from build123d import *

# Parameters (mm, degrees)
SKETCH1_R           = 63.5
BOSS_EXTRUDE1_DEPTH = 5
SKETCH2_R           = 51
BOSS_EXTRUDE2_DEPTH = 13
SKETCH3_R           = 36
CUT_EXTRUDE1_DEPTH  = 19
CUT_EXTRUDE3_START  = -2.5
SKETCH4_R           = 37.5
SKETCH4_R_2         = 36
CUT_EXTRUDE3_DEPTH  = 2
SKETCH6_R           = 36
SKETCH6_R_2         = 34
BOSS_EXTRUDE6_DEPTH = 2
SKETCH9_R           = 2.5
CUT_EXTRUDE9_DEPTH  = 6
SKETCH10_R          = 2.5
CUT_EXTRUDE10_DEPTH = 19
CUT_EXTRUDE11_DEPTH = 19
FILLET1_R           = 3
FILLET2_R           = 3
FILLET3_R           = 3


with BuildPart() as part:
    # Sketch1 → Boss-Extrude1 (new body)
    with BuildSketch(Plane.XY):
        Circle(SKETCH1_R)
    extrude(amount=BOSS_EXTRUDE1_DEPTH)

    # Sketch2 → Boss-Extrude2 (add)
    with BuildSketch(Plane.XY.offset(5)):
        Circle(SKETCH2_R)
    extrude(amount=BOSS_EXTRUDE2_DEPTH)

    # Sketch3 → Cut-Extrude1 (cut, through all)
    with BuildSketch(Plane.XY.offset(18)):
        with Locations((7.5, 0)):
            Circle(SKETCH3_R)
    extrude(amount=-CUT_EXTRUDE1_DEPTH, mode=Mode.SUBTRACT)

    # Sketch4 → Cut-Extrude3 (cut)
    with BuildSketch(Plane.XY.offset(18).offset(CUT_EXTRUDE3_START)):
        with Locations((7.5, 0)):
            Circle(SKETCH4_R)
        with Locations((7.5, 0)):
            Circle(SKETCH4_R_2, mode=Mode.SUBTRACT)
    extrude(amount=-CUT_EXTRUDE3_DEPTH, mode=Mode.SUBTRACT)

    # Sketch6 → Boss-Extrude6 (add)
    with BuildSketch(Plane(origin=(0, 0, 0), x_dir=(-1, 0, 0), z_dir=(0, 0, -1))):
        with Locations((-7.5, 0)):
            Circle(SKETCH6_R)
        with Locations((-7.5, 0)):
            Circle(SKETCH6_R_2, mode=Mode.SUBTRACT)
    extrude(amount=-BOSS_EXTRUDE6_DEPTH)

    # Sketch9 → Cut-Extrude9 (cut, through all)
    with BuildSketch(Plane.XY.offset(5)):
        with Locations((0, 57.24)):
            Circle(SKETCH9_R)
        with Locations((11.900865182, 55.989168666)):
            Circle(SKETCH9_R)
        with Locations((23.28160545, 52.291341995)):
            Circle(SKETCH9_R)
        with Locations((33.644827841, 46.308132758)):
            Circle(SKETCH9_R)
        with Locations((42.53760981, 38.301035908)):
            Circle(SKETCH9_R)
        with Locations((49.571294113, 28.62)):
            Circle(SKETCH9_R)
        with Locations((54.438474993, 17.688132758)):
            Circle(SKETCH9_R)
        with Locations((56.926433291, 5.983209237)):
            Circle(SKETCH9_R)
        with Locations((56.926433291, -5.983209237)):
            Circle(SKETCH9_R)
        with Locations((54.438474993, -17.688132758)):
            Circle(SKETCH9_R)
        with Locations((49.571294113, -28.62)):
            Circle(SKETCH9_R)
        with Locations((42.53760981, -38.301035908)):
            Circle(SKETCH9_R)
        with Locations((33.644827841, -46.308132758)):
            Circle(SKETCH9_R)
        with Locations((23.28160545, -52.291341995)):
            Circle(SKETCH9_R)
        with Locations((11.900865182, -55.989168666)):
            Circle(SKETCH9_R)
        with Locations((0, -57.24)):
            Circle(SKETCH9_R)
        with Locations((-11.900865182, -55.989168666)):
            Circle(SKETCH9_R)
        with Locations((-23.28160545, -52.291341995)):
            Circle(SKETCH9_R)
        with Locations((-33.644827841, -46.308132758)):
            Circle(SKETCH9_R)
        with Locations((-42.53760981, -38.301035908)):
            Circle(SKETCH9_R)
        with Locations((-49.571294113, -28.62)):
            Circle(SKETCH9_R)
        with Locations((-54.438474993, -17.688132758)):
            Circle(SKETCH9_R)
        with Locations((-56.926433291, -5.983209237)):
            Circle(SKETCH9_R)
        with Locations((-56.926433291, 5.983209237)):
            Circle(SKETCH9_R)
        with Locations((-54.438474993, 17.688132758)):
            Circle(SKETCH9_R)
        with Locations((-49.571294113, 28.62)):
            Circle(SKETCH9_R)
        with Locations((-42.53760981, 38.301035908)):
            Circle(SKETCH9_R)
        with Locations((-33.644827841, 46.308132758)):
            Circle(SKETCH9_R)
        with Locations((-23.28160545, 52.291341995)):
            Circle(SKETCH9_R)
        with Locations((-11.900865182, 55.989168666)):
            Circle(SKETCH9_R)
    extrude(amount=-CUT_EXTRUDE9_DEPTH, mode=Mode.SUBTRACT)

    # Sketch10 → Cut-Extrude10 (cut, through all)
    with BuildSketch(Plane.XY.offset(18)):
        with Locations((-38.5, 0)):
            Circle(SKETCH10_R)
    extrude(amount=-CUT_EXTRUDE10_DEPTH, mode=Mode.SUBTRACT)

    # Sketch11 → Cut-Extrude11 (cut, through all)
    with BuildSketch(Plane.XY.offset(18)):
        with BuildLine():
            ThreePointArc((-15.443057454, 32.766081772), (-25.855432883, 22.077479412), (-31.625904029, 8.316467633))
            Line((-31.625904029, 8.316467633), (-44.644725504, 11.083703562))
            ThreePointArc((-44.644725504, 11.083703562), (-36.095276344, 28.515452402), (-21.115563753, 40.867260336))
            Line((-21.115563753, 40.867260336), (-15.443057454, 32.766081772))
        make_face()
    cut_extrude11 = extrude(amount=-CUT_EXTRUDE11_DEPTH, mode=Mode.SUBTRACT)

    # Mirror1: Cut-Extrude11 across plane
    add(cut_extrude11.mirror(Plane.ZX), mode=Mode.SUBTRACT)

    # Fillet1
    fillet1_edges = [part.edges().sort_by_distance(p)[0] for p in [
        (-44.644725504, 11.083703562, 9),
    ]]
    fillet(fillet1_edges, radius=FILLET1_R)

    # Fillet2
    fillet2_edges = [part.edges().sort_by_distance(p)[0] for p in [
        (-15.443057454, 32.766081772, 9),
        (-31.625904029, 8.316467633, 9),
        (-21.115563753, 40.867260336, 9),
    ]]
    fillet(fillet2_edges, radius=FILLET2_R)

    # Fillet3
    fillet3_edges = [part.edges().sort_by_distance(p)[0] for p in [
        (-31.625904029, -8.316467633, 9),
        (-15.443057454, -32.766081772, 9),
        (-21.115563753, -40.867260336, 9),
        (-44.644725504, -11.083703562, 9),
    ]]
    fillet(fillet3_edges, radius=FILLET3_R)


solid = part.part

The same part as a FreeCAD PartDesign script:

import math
import FreeCAD as App
import Part
import Sketcher
Q = App.Units.Quantity


def edges_at(feature, points):
    """Names of the edges that pass closest to the given points."""
    edges = feature.Shape.Edges
    near = lambda p: min(range(len(edges)), key=lambda i: edges[i].distToShape(Part.Vertex(*p))[0])
    return sorted({f"Edge{near(p) + 1}" for p in points})

doc = App.newDocument("Part")
body = doc.addObject("PartDesign::Body", "Body")

# Sketch on XY plane
sketch1 = body.newObject("Sketcher::SketchObject", "Sketch")
sketch1.AttachmentSupport = (doc.getObject("XY_Plane"), [""])
sketch1.MapMode = "FlatFace"
sketch1.addGeometry(Part.Circle(App.Vector(0, 0, 0), App.Vector(0, 0, 1), 64), False)
sketch1.addConstraint([
    Sketcher.Constraint("Coincident", 0, 3, -1, 1),
    Sketcher.Constraint("Diameter", 0, 127.0),
])
pad1 = body.newObject("PartDesign::Pad", "Pad")
pad1.Profile = sketch1
pad1.Length = 5

# Sketch on XY plane
sketch2 = body.newObject("Sketcher::SketchObject", "Sketch001")
sketch2.AttachmentSupport = (doc.getObject("XY_Plane"), [""])
sketch2.MapMode = "FlatFace"
sketch2.AttachmentOffset = App.Placement(App.Vector(0, 0, 5), App.Rotation())
sketch2.addGeometry(Part.Circle(App.Vector(0, 0, 0), App.Vector(0, 0, 1), 51), False)
sketch2.addConstraint([
    Sketcher.Constraint("Coincident", 0, 3, -1, 1),
    Sketcher.Constraint("Diameter", 0, 102.0),
])
pad2 = body.newObject("PartDesign::Pad", "Pad001")
pad2.Profile = sketch2
pad2.Length = 13

# Sketch on XY plane
sketch3 = body.newObject("Sketcher::SketchObject", "Sketch002")
sketch3.AttachmentSupport = (doc.getObject("XY_Plane"), [""])
sketch3.MapMode = "FlatFace"
sketch3.AttachmentOffset = App.Placement(App.Vector(0, 0, 18), App.Rotation())
sketch3.addGeometry(Part.Circle(App.Vector(8, 0, 0), App.Vector(0, 0, 1), 36), False)
sketch3.addConstraint([
    Sketcher.Constraint("PointOnObject", 0, 3, -1),
    Sketcher.Constraint("Diameter", 0, 72.0),
    Sketcher.Constraint("DistanceX", -1, 1, 0, 3, 7.5),
])
pocket1 = body.newObject("PartDesign::Pocket", "Pocket")
pocket1.Profile = sketch3
pocket1.Type = "ThroughAll"

# Sketch on XY plane
sketch4 = body.newObject("Sketcher::SketchObject", "Sketch003")
sketch4.AttachmentSupport = (doc.getObject("XY_Plane"), [""])
sketch4.MapMode = "FlatFace"
sketch4.AttachmentOffset = App.Placement(App.Vector(0, 0, 15.5), App.Rotation())
sketch4.addGeometry([
    Part.Circle(App.Vector(8, 0, 0), App.Vector(0, 0, 1), 38),
    Part.Circle(App.Vector(8, 0, 0), App.Vector(0, 0, 1), 36),
], False)
sketch4.addConstraint([
    Sketcher.Constraint("Coincident", 1, 3, 0, 3),
    Sketcher.Constraint("PointOnObject", 0, 3, -1),
    Sketcher.Constraint("Diameter", 0, 75.0),
    Sketcher.Constraint("Diameter", 1, 72.0),
    Sketcher.Constraint("DistanceX", -1, 1, 0, 3, 7.5),
])
pocket2 = body.newObject("PartDesign::Pocket", "Pocket001")
pocket2.Profile = sketch4
pocket2.Length = 2

# Sketch on XY plane
sketch5 = body.newObject("Sketcher::SketchObject", "Sketch004")
sketch5.AttachmentSupport = (doc.getObject("XY_Plane"), [""])
sketch5.MapMode = "FlatFace"
sketch5.addGeometry([
    Part.Circle(App.Vector(8, 0, 0), App.Vector(0, 0, 1), 36),
    Part.Circle(App.Vector(8, 0, 0), App.Vector(0, 0, 1), 34),
], False)
sketch5.addConstraint([
    Sketcher.Constraint("Coincident", 1, 3, 0, 3),
    Sketcher.Constraint("PointOnObject", 0, 3, -1),
    Sketcher.Constraint("Diameter", 0, 72.0),
    Sketcher.Constraint("Diameter", 1, 68.0),
    Sketcher.Constraint("DistanceX", -1, 1, 0, 3, 7.5),
])
pad3 = body.newObject("PartDesign::Pad", "Pad002")
pad3.Profile = sketch5
pad3.Length = 2

# Sketch on XY plane
sketch6 = body.newObject("Sketcher::SketchObject", "Sketch005")
sketch6.AttachmentSupport = (doc.getObject("XY_Plane"), [""])
sketch6.MapMode = "FlatFace"
sketch6.AttachmentOffset = App.Placement(App.Vector(0, 0, 5), App.Rotation())
sketch6.addGeometry([
    Part.Circle(App.Vector(0, 57.2, 0), App.Vector(0, 0, 1), 2.5),  # 0
    Part.Circle(App.Vector(11.9, 56, 0), App.Vector(0, 0, 1), 2.5),  # 1
    Part.Circle(App.Vector(23.3, 52.3, 0), App.Vector(0, 0, 1), 2.5),  # 2
    Part.Circle(App.Vector(33.6, 46.3, 0), App.Vector(0, 0, 1), 2.5),  # 3
    Part.Circle(App.Vector(42.5, 38.3, 0), App.Vector(0, 0, 1), 2.5),  # 4
    Part.Circle(App.Vector(49.6, 28.6, 0), App.Vector(0, 0, 1), 2.5),  # 5
    Part.Circle(App.Vector(54.4, 17.7, 0), App.Vector(0, 0, 1), 2.5),  # 6
    Part.Circle(App.Vector(56.9, 6, 0), App.Vector(0, 0, 1), 2.5),  # 7
    Part.Circle(App.Vector(56.9, -6, 0), App.Vector(0, 0, 1), 2.5),  # 8
    Part.Circle(App.Vector(54.4, -17.7, 0), App.Vector(0, 0, 1), 2.5),  # 9
    Part.Circle(App.Vector(49.6, -28.6, 0), App.Vector(0, 0, 1), 2.5),  # 10
    Part.Circle(App.Vector(42.5, -38.3, 0), App.Vector(0, 0, 1), 2.5),  # 11
    Part.Circle(App.Vector(33.6, -46.3, 0), App.Vector(0, 0, 1), 2.5),  # 12
    Part.Circle(App.Vector(23.3, -52.3, 0), App.Vector(0, 0, 1), 2.5),  # 13
    Part.Circle(App.Vector(11.9, -56, 0), App.Vector(0, 0, 1), 2.5),  # 14
    Part.Circle(App.Vector(0, -57.2, 0), App.Vector(0, 0, 1), 2.5),  # 15
    Part.Circle(App.Vector(-11.9, -56, 0), App.Vector(0, 0, 1), 2.5),  # 16
    Part.Circle(App.Vector(-23.3, -52.3, 0), App.Vector(0, 0, 1), 2.5),  # 17
    Part.Circle(App.Vector(-33.6, -46.3, 0), App.Vector(0, 0, 1), 2.5),  # 18
    Part.Circle(App.Vector(-42.5, -38.3, 0), App.Vector(0, 0, 1), 2.5),  # 19
    Part.Circle(App.Vector(-49.6, -28.6, 0), App.Vector(0, 0, 1), 2.5),  # 20
    Part.Circle(App.Vector(-54.4, -17.7, 0), App.Vector(0, 0, 1), 2.5),  # 21
    Part.Circle(App.Vector(-56.9, -6, 0), App.Vector(0, 0, 1), 2.5),  # 22
    Part.Circle(App.Vector(-56.9, 6, 0), App.Vector(0, 0, 1), 2.5),  # 23
    Part.Circle(App.Vector(-54.4, 17.7, 0), App.Vector(0, 0, 1), 2.5),  # 24
    Part.Circle(App.Vector(-49.6, 28.6, 0), App.Vector(0, 0, 1), 2.5),  # 25
    Part.Circle(App.Vector(-42.5, 38.3, 0), App.Vector(0, 0, 1), 2.5),  # 26
    Part.Circle(App.Vector(-33.6, 46.3, 0), App.Vector(0, 0, 1), 2.5),  # 27
    Part.Circle(App.Vector(-23.3, 52.3, 0), App.Vector(0, 0, 1), 2.5),  # 28
    Part.Circle(App.Vector(-11.9, 56, 0), App.Vector(0, 0, 1), 2.5),  # 29
], False)
sketch6.addConstraint([
    Sketcher.Constraint("Equal", 0, 1),
    Sketcher.Constraint("Equal", 1, 2),
    Sketcher.Constraint("Equal", 2, 3),
    Sketcher.Constraint("Equal", 3, 4),
    Sketcher.Constraint("Equal", 4, 5),
    Sketcher.Constraint("Equal", 5, 6),
    Sketcher.Constraint("Equal", 6, 7),
    Sketcher.Constraint("Equal", 7, 8),
    Sketcher.Constraint("Equal", 8, 9),
    Sketcher.Constraint("Equal", 9, 10),
    Sketcher.Constraint("Equal", 10, 11),
    Sketcher.Constraint("Equal", 11, 12),
    Sketcher.Constraint("Equal", 12, 13),
    Sketcher.Constraint("Equal", 13, 14),
    Sketcher.Constraint("Equal", 14, 15),
    Sketcher.Constraint("Equal", 15, 16),
    Sketcher.Constraint("Equal", 16, 17),
    Sketcher.Constraint("Equal", 17, 18),
    Sketcher.Constraint("Equal", 18, 19),
    Sketcher.Constraint("Equal", 19, 20),
    Sketcher.Constraint("Equal", 20, 21),
    Sketcher.Constraint("Equal", 21, 22),
    Sketcher.Constraint("Equal", 22, 23),
    Sketcher.Constraint("Equal", 23, 24),
    Sketcher.Constraint("Equal", 24, 25),
    Sketcher.Constraint("Equal", 25, 26),
    Sketcher.Constraint("Equal", 26, 27),
    Sketcher.Constraint("Equal", 27, 28),
    Sketcher.Constraint("Equal", 28, 29),
    Sketcher.Constraint("Symmetric", 0, 3, 15, 3, -1, 1),
    Sketcher.Constraint("Symmetric", 1, 3, 16, 3, -1, 1),
    Sketcher.Constraint("Symmetric", 2, 3, 17, 3, -1, 1),
    Sketcher.Constraint("Symmetric", 3, 3, 18, 3, -1, 1),
    Sketcher.Constraint("Symmetric", 4, 3, 19, 3, -1, 1),
    Sketcher.Constraint("Symmetric", 5, 3, 20, 3, -1, 1),
    Sketcher.Constraint("Symmetric", 6, 3, 21, 3, -1, 1),
    Sketcher.Constraint("Symmetric", 7, 3, 22, 3, -1, 1),
    Sketcher.Constraint("Symmetric", 8, 3, 23, 3, -1, 1),
    Sketcher.Constraint("Symmetric", 9, 3, 24, 3, -1, 1),
    Sketcher.Constraint("Symmetric", 10, 3, 25, 3, -1, 1),
    Sketcher.Constraint("Symmetric", 11, 3, 26, 3, -1, 1),
    Sketcher.Constraint("Symmetric", 12, 3, 27, 3, -1, 1),
    Sketcher.Constraint("Symmetric", 13, 3, 28, 3, -1, 1),
    Sketcher.Constraint("Symmetric", 14, 3, 29, 3, -1, 1),
    Sketcher.Constraint("Symmetric", 14, 3, 16, 3, -2),
    Sketcher.Constraint("Symmetric", 13, 3, 17, 3, -2),
    Sketcher.Constraint("Symmetric", 12, 3, 18, 3, -2),
    Sketcher.Constraint("Symmetric", 11, 3, 19, 3, -2),
    Sketcher.Constraint("Symmetric", 10, 3, 20, 3, -2),
    Sketcher.Constraint("Symmetric", 9, 3, 21, 3, -2),
    Sketcher.Constraint("Symmetric", 8, 3, 22, 3, -2),
    Sketcher.Constraint("PointOnObject", 0, 3, -2),
    Sketcher.Constraint("Diameter", 0, 5.0),
    Sketcher.Constraint("DistanceY", -1, 1, 0, 3, 57.24),
    Sketcher.Constraint("DistanceY", -1, 1, 5, 3, 28.62),
    Sketcher.Constraint("DistanceY", 6, 3, 3, 3, 28.62),
    Sketcher.Constraint("DistanceY", -1, 1, 1, 3, 55.989169),
    Sketcher.Constraint("DistanceY", -1, 1, 2, 3, 52.291342),
    Sketcher.Constraint("DistanceX", -1, 1, 4, 3, 42.53761),
    Sketcher.Constraint("DistanceY", -1, 1, 7, 3, 5.983209),
    Sketcher.Constraint("DistanceX", 1, 3, 2, 3, 11.38074),
    Sketcher.Constraint("DistanceY", 3, 3, 2, 3, 5.983209),
    Sketcher.Constraint("DistanceX", 3, 3, 4, 3, 8.892782),
    Sketcher.Constraint("DistanceX", 2, 3, 5, 3, 26.289689),
    Sketcher.Constraint("DistanceX", 5, 3, 6, 3, 4.867181),
    Sketcher.Constraint("DistanceX", 6, 3, 7, 3, 2.487958),
    Sketcher.Constraint("DistanceY", 9, 3, 4, 3, 55.989169),
    Sketcher.Constraint("DistanceX", 16, 3, 14, 3, 23.80173),
])
pocket3 = body.newObject("PartDesign::Pocket", "Pocket002")
pocket3.Profile = sketch6
pocket3.Type = "ThroughAll"

# Sketch on XY plane
sketch7 = body.newObject("Sketcher::SketchObject", "Sketch006")
sketch7.AttachmentSupport = (doc.getObject("XY_Plane"), [""])
sketch7.MapMode = "FlatFace"
sketch7.AttachmentOffset = App.Placement(App.Vector(0, 0, 18), App.Rotation())
sketch7.addGeometry(Part.Circle(App.Vector(-38.5, 0, 0), App.Vector(0, 0, 1), 2.5), False)
sketch7.addConstraint([
    Sketcher.Constraint("PointOnObject", 0, 3, -1),
    Sketcher.Constraint("Diameter", 0, 5.0),
    Sketcher.Constraint("DistanceX", 0, 3, -1, 1, 38.5),
])
pocket4 = body.newObject("PartDesign::Pocket", "Pocket003")
pocket4.Profile = sketch7
pocket4.Type = "ThroughAll"

# Sketch on XY plane
sketch8 = body.newObject("Sketcher::SketchObject", "Sketch007")
sketch8.AttachmentSupport = (doc.getObject("XY_Plane"), [""])
sketch8.MapMode = "FlatFace"
sketch8.AttachmentOffset = App.Placement(App.Vector(0, 0, 18), App.Rotation())
sketch8.addGeometry([
    Part.ArcOfCircle(Part.Circle(App.Vector(8, 0, 0), App.Vector(0, 0, 1), 40), math.radians(125), math.radians(168)),
    Part.LineSegment(App.Vector(-15, 33, 0), App.Vector(-21, 41, 0)),
    Part.ArcOfCircle(Part.Circle(App.Vector(0, 0, 0), App.Vector(0, 0, 1), 46), math.radians(117), math.radians(166)),
    Part.LineSegment(App.Vector(-45, 11, 0), App.Vector(-32, 8, 0)),
], False)
sketch8.addConstraint([
    Sketcher.Constraint("Coincident", 0, 1, 1, 1),
    Sketcher.Constraint("Coincident", 1, 2, 2, 1),
    Sketcher.Constraint("Coincident", 2, 2, 3, 1),
    Sketcher.Constraint("Coincident", 3, 2, 0, 2),
    Sketcher.Constraint("Coincident", 2, 3, -1, 1),
    Sketcher.Constraint("PointOnObject", 0, 3, -1),
    Sketcher.Constraint("Radius", 0, 40.0),
    Sketcher.Constraint("Radius", 2, 46.0),
    Sketcher.Constraint("Angle", 1, Q("125 deg")),
    Sketcher.Constraint("Angle", 3, Q("-12 deg")),
    Sketcher.Constraint("DistanceX", -1, 1, 0, 3, 7.5),
    Sketcher.Constraint("Distance", 3, 13.30967),
    Sketcher.Constraint("DistanceY", -1, 1, 0, 1, 32.766082),
])
pocket5 = body.newObject("PartDesign::Pocket", "Pocket004")
pocket5.Profile = sketch8
pocket5.Type = "ThroughAll"
doc.recompute()

mirrored = body.newObject("PartDesign::Mirrored", "Mirrored")
mirrored.Originals = [pocket5]
mirrored.MirrorPlane = (doc.getObject("XZ_Plane"), [""])
body.Tip = mirrored
doc.recompute()

fillet = body.newObject("PartDesign::Fillet", "Fillet")
fillet.Base = (mirrored, edges_at(mirrored, [(-44.645, 11.084, 9)]))
fillet.Radius = 3
doc.recompute()

fillet2 = body.newObject("PartDesign::Fillet", "Fillet001")
fillet2.Base = (fillet, edges_at(fillet, [(-15.443, 32.766, 9), (-31.626, 8.316, 9), (-21.116, 40.867, 9)]))
fillet2.Radius = 3
doc.recompute()

fillet3 = body.newObject("PartDesign::Fillet", "Fillet002")
fillet3.Base = (fillet2, edges_at(fillet2, [
    (-31.626, -8.316, 9),
    (-15.443, -32.766, 9),
    (-21.116, -40.867, 9),
    (-44.645, -11.084, 9),
]))
fillet3.Radius = 3

doc.recompute()
